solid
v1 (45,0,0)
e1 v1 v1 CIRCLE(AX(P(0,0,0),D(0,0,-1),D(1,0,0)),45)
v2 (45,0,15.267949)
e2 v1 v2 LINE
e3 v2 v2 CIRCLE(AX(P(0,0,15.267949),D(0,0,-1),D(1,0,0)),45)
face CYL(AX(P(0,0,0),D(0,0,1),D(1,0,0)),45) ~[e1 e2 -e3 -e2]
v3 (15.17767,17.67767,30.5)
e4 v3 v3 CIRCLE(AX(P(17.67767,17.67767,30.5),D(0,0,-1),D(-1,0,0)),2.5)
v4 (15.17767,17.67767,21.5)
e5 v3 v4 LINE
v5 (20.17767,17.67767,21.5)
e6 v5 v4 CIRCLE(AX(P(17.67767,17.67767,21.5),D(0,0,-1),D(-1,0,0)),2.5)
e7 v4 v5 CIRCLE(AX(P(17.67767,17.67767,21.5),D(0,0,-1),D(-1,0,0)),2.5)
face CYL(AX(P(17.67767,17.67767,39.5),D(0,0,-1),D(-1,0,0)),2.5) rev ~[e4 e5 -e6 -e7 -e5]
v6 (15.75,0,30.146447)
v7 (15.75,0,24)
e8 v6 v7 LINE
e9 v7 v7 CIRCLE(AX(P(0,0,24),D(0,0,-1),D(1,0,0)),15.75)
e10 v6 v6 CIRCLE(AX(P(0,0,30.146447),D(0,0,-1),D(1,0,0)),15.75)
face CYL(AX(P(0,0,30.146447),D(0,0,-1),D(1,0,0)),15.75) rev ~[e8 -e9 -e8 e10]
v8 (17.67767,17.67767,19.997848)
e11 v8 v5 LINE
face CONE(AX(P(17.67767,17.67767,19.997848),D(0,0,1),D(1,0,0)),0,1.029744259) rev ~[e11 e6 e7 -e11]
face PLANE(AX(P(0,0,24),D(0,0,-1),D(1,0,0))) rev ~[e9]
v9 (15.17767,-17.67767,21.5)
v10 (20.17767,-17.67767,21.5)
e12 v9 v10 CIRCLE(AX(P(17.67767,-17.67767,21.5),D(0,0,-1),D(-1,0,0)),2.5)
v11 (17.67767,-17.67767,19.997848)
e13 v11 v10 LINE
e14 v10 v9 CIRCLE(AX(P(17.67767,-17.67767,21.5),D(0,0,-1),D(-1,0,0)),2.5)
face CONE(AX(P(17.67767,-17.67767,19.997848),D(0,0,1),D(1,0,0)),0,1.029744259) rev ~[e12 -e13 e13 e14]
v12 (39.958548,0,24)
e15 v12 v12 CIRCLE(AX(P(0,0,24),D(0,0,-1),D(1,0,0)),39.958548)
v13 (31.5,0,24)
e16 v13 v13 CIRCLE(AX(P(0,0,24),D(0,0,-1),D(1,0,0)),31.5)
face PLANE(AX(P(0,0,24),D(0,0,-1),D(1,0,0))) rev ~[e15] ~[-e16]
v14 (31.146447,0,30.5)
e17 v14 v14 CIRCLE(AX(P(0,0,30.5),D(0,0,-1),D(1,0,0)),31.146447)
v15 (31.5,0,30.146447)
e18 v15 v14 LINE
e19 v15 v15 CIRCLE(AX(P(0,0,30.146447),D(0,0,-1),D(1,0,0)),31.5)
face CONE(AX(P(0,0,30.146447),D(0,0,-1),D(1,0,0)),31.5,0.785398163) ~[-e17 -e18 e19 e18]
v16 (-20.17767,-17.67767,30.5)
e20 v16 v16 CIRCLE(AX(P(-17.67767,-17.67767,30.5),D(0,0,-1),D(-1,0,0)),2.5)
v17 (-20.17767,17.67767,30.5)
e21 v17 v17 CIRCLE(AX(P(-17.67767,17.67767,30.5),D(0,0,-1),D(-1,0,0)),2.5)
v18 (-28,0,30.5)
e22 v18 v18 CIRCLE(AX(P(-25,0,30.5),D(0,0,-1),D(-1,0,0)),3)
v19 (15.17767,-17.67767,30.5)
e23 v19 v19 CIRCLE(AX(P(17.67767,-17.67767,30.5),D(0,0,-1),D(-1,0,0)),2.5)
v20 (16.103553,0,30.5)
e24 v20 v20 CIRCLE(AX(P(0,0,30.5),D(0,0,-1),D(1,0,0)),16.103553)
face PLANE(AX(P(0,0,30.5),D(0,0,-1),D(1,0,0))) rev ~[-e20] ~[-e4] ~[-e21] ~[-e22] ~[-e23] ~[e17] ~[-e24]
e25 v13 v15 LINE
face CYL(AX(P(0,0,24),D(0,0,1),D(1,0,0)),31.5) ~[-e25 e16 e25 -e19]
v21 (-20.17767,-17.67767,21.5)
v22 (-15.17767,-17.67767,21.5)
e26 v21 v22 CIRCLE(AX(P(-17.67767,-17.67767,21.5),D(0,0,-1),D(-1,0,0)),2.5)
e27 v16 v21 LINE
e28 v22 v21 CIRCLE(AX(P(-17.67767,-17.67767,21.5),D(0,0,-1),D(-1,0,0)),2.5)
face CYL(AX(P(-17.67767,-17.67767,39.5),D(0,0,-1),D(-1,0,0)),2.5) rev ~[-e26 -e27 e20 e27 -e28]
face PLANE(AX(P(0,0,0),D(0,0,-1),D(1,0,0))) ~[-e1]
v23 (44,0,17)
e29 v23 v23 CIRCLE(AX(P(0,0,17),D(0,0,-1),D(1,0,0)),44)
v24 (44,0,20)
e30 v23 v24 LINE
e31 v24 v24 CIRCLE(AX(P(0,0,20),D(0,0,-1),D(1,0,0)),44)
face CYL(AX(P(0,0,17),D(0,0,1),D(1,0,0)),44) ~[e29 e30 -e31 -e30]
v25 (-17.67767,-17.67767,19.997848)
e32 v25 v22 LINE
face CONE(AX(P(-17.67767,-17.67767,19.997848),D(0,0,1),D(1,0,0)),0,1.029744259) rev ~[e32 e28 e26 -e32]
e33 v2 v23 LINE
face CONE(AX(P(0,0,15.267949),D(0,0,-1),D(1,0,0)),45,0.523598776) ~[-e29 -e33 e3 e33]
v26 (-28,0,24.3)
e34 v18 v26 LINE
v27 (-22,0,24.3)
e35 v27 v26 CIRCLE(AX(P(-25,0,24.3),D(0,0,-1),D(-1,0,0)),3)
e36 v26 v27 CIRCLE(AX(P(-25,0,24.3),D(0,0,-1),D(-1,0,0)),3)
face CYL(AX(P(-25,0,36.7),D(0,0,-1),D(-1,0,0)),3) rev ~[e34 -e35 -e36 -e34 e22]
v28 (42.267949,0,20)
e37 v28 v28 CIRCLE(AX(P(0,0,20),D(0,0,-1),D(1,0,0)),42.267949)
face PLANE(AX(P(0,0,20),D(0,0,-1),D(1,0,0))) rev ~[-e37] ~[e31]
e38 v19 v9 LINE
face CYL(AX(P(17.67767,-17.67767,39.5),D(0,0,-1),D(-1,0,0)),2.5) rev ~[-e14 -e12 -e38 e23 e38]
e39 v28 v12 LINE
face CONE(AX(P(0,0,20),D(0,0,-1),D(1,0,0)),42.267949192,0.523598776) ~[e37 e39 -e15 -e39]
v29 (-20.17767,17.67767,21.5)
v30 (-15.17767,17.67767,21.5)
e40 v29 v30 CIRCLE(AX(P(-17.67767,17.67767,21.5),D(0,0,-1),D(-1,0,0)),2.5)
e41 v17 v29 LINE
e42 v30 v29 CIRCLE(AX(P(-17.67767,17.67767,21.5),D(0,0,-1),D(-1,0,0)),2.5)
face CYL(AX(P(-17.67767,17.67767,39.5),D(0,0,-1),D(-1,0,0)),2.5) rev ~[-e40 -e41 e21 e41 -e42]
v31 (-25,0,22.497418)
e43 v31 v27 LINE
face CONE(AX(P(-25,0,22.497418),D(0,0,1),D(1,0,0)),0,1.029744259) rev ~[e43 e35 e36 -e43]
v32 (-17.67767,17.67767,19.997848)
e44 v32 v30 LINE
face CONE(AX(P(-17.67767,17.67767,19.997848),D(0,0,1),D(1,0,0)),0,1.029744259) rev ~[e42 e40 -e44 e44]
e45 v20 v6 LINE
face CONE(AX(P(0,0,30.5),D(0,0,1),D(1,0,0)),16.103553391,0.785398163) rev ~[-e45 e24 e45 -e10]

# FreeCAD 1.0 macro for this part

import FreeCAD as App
import Part
import Sketcher
from FreeCAD import Vector
Q = App.Units.Quantity

doc = App.newDocument("Part")
body = doc.addObject("PartDesign::Body", "Body")

sketch1 = doc.addObject("Sketcher::SketchObject", "Sketch")
body.addObject(sketch1)
sketch1.AttachmentSupport = (doc.XZ_Plane, [""])
sketch1.MapMode = "FlatFace"
sketch1.addGeometry([
    Part.LineSegment(Vector(0, 24, 0), Vector(0, 0, 0)),
    Part.LineSegment(Vector(0, 0, 0), Vector(45, 0, 0)),
    Part.LineSegment(Vector(45, 0, 0), Vector(45, 15.267949, 0)),
    Part.LineSegment(Vector(45, 15.267949, 0), Vector(44, 17, 0)),
    Part.LineSegment(Vector(44, 17, 0), Vector(44, 20, 0)),
    Part.LineSegment(Vector(44, 20, 0), Vector(42.267949, 20, 0)),
    Part.LineSegment(Vector(42.267949, 20, 0), Vector(39.958548, 24, 0)),
    Part.LineSegment(Vector(39.958548, 24, 0), Vector(31.5, 24, 0)),
    Part.LineSegment(Vector(31.5, 24, 0), Vector(31.5, 30.146447, 0)),
    Part.LineSegment(Vector(31.5, 30.146447, 0), Vector(31.146447, 30.5, 0)),
    Part.LineSegment(Vector(31.146447, 30.5, 0), Vector(16.103553, 30.5, 0)),
    Part.LineSegment(Vector(16.103553, 30.5, 0), Vector(15.75, 30.146447, 0)),
    Part.LineSegment(Vector(15.75, 30.146447, 0), Vector(15.75, 24, 0)),
    Part.LineSegment(Vector(15.75, 24, 0), Vector(0, 24, 0)),
], False)
sketch1.addConstraint([
    Sketcher.Constraint("Coincident", 0, 2, 1, 1),
    Sketcher.Constraint("Coincident", 1, 2, 2, 1),
    Sketcher.Constraint("Coincident", 2, 2, 3, 1),
    Sketcher.Constraint("Coincident", 3, 2, 4, 1),
    Sketcher.Constraint("Coincident", 4, 2, 5, 1),
    Sketcher.Constraint("Coincident", 5, 2, 6, 1),
    Sketcher.Constraint("Coincident", 6, 2, 7, 1),
    Sketcher.Constraint("Coincident", 7, 2, 8, 1),
    Sketcher.Constraint("Coincident", 8, 2, 9, 1),
    Sketcher.Constraint("Coincident", 9, 2, 10, 1),
    Sketcher.Constraint("Coincident", 10, 2, 11, 1),
    Sketcher.Constraint("Coincident", 11, 2, 12, 1),
    Sketcher.Constraint("Coincident", 12, 2, 13, 1),
    Sketcher.Constraint("Coincident", 13, 2, 0, 1),
    Sketcher.Constraint("Vertical", 0),
    Sketcher.Constraint("Horizontal", 1),
    Sketcher.Constraint("Vertical", 2),
    Sketcher.Constraint("Vertical", 4),
    Sketcher.Constraint("Horizontal", 5),
    Sketcher.Constraint("Horizontal", 7),
    Sketcher.Constraint("Vertical", 8),
    Sketcher.Constraint("Horizontal", 10),
    Sketcher.Constraint("Vertical", 12),
    Sketcher.Constraint("Horizontal", 13),
    Sketcher.Constraint("Coincident", 0, 2, -1, 1),
    Sketcher.Constraint("Parallel", 3, 6),
    Sketcher.Constraint("Perpendicular", 9, 11),
    Sketcher.Constraint("Horizontal", 8, 2, 11, 2),
    Sketcher.Constraint("Horizontal", 7, 2, 12, 2),
    Sketcher.Constraint("Equal", 9, 11),
    Sketcher.Constraint("DistanceX", 1, 1, 1, 2, 45.0),
    Sketcher.Constraint("DistanceY", 0, 2, 0, 1, 24.0),
    Sketcher.Constraint("DistanceY", 4, 1, 4, 2, 3.0),
    Sketcher.Constraint("Angle", 3, Q("120 deg")),
    Sketcher.Constraint("Distance", 3, 2.0),
    Sketcher.Constraint("DistanceY", -1, 1, 3, 2, 17.0),
    Sketcher.Constraint("Distance", 9, 0.5),
    Sketcher.Constraint("DistanceX", 13, 2, 13, 1, 15.75),
    Sketcher.Constraint("DistanceX", -1, 1, 7, 2, 31.5),
    Sketcher.Constraint("DistanceY", -1, 1, 9, 2, 30.5),
    Sketcher.Constraint("DistanceX", 5, 2, 5, 1, 1.732051),
])
revolution = doc.addObject("PartDesign::Revolution", "Revolution")
body.addObject(revolution)
revolution.Profile = sketch1
revolution.ReferenceAxis = (sketch1, ["V_Axis"])
revolution.Angle = 360

sketch2 = doc.addObject("Sketcher::SketchObject", "Sketch001")
body.addObject(sketch2)
sketch2.AttachmentSupport = (doc.XY_Plane, [""])
sketch2.MapMode = "FlatFace"
sketch2.AttachmentOffset = App.Placement(Vector(0, 0, 30.5), App.Rotation())
sketch2.addGeometry([
    Part.Circle(Vector(-17.67767, 17.67767, 0), Vector(0, 0, 1), 2.5),
    Part.Circle(Vector(-17.67767, -17.67767, 0), Vector(0, 0, 1), 2.5),
    Part.Circle(Vector(17.67767, 17.67767, 0), Vector(0, 0, 1), 2.5),
    Part.Circle(Vector(17.67767, -17.67767, 0), Vector(0, 0, 1), 2.5),
], False)
sketch2.addConstraint([
    Sketcher.Constraint("Equal", 0, 1),
    Sketcher.Constraint("Equal", 1, 2),
    Sketcher.Constraint("Equal", 2, 3),
    Sketcher.Constraint("Symmetric", 1, 3, 2, 3, -1, 1),
    Sketcher.Constraint("Symmetric", 0, 3, 3, 3, -1, 1),
    Sketcher.Constraint("Symmetric", 0, 3, 2, 3, -2),
    Sketcher.Constraint("Diameter", 0, 5.0),
    Sketcher.Constraint("DistanceX", 0, 3, -1, 1, 17.67767),
    Sketcher.Constraint("DistanceY", -1, 1, 0, 3, 17.67767),
])
doc.recompute()
hole = doc.addObject("PartDesign::Hole", "Hole")
body.addObject(hole)
hole.Profile = sketch2
hole.ThreadType = "None"
hole.Diameter = 5
hole.DepthType = "Dimension"
hole.Depth = 9
hole.DrillPoint = "Angled"
hole.DrillPointAngle = 118

sketch3 = doc.addObject("Sketcher::SketchObject", "Sketch002")
body.addObject(sketch3)
sketch3.AttachmentSupport = (doc.XY_Plane, [""])
sketch3.MapMode = "FlatFace"
sketch3.AttachmentOffset = App.Placement(Vector(0, 0, 30.5), App.Rotation())
sketch3.addGeometry(Part.Circle(Vector(-25, 0, 0), Vector(0, 0, 1), 3), False)
sketch3.addConstraint([
    Sketcher.Constraint("PointOnObject", 0, 3, -1),
    Sketcher.Constraint("Diameter", 0, 6.0),
    Sketcher.Constraint("DistanceX", 0, 3, -1, 1, 25.0),
])
doc.recompute()
hole2 = doc.addObject("PartDesign::Hole", "Hole001")
body.addObject(hole2)
hole2.Profile = sketch3
hole2.ThreadType = "None"
hole2.Diameter = 6
hole2.DepthType = "Dimension"
hole2.Depth = 6.2
hole2.DrillPoint = "Angled"
hole2.DrillPointAngle = 118

doc.recompute()
